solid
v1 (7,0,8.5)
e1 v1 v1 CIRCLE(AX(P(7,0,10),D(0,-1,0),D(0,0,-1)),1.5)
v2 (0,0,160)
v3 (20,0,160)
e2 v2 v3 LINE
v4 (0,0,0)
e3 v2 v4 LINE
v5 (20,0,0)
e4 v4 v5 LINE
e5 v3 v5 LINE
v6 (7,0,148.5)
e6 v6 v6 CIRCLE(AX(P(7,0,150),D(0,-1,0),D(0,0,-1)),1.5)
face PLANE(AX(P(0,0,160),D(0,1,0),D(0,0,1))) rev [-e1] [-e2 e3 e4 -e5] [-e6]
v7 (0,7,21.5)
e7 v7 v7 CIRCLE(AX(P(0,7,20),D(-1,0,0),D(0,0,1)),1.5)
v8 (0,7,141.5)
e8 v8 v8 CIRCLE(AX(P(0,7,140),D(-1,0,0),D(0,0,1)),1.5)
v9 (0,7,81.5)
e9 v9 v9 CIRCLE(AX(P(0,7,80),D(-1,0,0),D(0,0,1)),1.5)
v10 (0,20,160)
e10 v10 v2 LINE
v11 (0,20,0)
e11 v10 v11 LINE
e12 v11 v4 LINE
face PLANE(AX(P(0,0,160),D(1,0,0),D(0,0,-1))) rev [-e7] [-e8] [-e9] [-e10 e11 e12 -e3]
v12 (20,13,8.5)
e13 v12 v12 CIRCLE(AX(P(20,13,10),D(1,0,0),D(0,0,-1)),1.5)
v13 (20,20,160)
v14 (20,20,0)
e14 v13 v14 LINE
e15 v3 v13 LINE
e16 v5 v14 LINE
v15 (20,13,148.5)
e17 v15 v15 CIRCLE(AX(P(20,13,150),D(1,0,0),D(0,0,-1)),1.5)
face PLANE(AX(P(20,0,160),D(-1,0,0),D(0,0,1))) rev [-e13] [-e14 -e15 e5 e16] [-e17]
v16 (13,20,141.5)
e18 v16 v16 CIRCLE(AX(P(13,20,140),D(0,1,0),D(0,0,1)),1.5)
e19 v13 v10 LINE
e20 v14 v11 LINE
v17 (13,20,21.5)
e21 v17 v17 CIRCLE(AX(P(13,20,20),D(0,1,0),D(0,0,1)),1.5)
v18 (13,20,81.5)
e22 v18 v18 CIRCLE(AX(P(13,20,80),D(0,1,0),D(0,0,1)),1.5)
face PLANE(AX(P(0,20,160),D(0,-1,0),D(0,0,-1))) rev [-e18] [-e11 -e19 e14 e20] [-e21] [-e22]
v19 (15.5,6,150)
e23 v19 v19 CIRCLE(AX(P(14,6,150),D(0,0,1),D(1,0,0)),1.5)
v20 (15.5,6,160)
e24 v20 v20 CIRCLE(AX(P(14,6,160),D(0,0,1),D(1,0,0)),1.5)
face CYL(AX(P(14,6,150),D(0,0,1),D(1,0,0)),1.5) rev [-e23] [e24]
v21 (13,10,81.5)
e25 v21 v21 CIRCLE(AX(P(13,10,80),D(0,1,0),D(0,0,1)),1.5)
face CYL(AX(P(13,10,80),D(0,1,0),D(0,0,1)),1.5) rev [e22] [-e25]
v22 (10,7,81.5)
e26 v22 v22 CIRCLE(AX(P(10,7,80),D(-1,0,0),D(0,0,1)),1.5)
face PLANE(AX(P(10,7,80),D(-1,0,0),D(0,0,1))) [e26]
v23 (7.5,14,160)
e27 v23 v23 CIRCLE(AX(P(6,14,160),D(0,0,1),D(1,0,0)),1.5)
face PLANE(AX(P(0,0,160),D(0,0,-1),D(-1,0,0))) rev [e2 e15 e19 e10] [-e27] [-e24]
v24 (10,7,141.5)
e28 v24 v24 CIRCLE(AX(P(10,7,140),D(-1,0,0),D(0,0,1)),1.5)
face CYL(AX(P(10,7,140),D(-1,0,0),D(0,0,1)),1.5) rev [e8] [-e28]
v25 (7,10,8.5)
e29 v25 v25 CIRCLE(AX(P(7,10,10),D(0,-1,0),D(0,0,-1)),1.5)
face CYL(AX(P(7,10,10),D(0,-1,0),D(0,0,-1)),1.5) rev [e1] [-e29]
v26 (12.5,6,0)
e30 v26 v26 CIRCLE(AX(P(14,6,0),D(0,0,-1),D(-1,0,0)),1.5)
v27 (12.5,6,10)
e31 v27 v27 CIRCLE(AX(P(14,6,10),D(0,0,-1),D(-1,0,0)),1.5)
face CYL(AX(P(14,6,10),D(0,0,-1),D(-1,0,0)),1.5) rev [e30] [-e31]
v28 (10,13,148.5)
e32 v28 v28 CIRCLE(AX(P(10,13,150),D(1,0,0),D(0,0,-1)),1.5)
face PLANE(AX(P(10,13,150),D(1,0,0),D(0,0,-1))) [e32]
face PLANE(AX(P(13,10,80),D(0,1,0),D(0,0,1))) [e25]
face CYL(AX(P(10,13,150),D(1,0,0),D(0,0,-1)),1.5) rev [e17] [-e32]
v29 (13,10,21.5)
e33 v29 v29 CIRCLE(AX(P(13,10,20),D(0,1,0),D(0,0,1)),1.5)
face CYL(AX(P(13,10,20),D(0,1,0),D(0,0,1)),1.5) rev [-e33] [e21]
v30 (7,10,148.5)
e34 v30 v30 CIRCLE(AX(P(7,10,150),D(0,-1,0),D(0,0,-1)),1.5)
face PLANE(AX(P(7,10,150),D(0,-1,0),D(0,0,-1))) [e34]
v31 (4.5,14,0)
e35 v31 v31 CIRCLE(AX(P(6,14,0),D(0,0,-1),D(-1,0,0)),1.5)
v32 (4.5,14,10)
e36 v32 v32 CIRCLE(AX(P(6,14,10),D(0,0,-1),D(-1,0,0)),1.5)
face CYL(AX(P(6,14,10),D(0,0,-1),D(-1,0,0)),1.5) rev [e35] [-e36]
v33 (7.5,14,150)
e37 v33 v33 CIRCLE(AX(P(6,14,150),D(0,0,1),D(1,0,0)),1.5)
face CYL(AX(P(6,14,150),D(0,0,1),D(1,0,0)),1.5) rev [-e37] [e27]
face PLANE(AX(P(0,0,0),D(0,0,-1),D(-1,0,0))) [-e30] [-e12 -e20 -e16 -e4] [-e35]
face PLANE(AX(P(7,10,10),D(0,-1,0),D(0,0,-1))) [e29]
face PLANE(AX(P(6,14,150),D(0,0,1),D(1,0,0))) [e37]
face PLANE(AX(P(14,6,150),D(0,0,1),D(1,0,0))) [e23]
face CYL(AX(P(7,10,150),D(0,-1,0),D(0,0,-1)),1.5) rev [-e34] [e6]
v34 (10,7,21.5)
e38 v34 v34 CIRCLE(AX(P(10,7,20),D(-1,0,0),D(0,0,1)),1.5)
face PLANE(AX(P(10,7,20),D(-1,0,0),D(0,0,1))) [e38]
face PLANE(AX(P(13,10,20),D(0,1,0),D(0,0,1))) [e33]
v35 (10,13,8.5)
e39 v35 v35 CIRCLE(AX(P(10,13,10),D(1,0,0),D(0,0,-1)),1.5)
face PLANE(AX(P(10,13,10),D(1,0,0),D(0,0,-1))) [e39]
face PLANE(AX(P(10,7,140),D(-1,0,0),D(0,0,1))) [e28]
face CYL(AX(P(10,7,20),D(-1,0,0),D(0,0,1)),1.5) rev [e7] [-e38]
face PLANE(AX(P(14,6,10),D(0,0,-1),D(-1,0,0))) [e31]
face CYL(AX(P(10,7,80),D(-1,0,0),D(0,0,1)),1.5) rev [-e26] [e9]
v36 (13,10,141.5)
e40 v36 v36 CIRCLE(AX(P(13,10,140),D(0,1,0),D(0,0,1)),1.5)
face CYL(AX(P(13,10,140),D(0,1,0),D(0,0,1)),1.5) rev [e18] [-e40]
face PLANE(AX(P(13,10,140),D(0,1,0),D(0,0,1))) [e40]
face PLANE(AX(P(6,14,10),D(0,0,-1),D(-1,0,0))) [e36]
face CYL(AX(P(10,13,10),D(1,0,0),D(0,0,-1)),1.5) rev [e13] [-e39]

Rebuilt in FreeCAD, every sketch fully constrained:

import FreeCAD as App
import Part
import Sketcher
Q = App.Units.Quantity


def add_polygon(sketch, points):
    """Adds a closed chain of lines whose ends are joined by coincident constraints."""
    first, n = sketch.GeometryCount, len(points)
    for a, b in zip(points, points[1:] + points[:1]):
        sketch.addGeometry(Part.LineSegment(App.Vector(*a, 0), App.Vector(*b, 0)), False)
    for i in range(n):
        sketch.addConstraint(Sketcher.Constraint("Coincident", first + i, 2, first + (i + 1) % n, 1))

doc = App.newDocument("Part")
body = doc.addObject("PartDesign::Body", "Body")

sketch1 = doc.addObject("Sketcher::SketchObject", "Sketch")
body.addObject(sketch1)
sketch1.AttachmentSupport = (doc.XY_Plane, [""])
sketch1.MapMode = "FlatFace"
add_polygon(sketch1, [(0, 20), (0, 0), (20, 0), (20, 20)])
sketch1.addConstraint([
    Sketcher.Constraint("Vertical", 0),
    Sketcher.Constraint("Horizontal", 1),
    Sketcher.Constraint("Vertical", 2),
    Sketcher.Constraint("Horizontal", 3),
    Sketcher.Constraint("Coincident", 0, 2, -1, 1),
    Sketcher.Constraint("Equal", 3, 0),
    Sketcher.Constraint("DistanceX", 1, 1, 1, 2, Q("20 mm")),
])
pad1 = doc.addObject("PartDesign::Pad", "Pad")
body.addObject(pad1)
pad1.Profile = sketch1
pad1.Length = 160

sketch2 = doc.addObject("Sketcher::SketchObject", "Sketch001")
body.addObject(sketch2)
sketch2.AttachmentSupport = (doc.XY_Plane, [""])
sketch2.MapMode = "FlatFace"
sketch2.AttachmentOffset = App.Placement(App.Vector(0, 0, 160), App.Rotation())
sketch2.addGeometry([
    Part.Circle(App.Vector(14, 6, 0), App.Vector(0, 0, 1), 1.5),
    Part.Circle(App.Vector(6, 14, 0), App.Vector(0, 0, 1), 1.5),
], False)
sketch2.addConstraint([
    Sketcher.Constraint("Equal", 0, 1),
    Sketcher.Constraint("Diameter", 0, Q("3 mm")),
    Sketcher.Constraint("DistanceX", -1, 1, 0, 3, Q("14 mm")),
    Sketcher.Constraint("DistanceY", -1, 1, 0, 3, Q("6 mm")),
    Sketcher.Constraint("DistanceX", -1, 1, 1, 3, Q("6 mm")),
    Sketcher.Constraint("DistanceY", -1, 1, 1, 3, Q("14 mm")),
])
pocket1 = doc.addObject("PartDesign::Pocket", "Pocket")
body.addObject(pocket1)
pocket1.Profile = sketch2
pocket1.Length = 10

sketch3 = doc.addObject("Sketcher::SketchObject", "Sketch002")
body.addObject(sketch3)
sketch3.AttachmentSupport = (doc.XY_Plane, [""])
sketch3.MapMode = "FlatFace"
sketch3.AttachmentOffset = App.Placement(App.Vector(0, 0, 10), App.Rotation())
sketch3.addGeometry([
    Part.Circle(App.Vector(14, 6, 0), App.Vector(0, 0, 1), 1.5),
    Part.Circle(App.Vector(6, 14, 0), App.Vector(0, 0, 1), 1.5),
], False)
sketch3.addConstraint([
    Sketcher.Constraint("Equal", 0, 1),
    Sketcher.Constraint("Diameter", 0, Q("3 mm")),
    Sketcher.Constraint("DistanceX", -1, 1, 0, 3, Q("14 mm")),
    Sketcher.Constraint("DistanceY", -1, 1, 0, 3, Q("6 mm")),
    Sketcher.Constraint("DistanceX", -1, 1, 1, 3, Q("6 mm")),
    Sketcher.Constraint("DistanceY", -1, 1, 1, 3, Q("14 mm")),
])
pocket2 = doc.addObject("PartDesign::Pocket", "Pocket001")
body.addObject(pocket2)
pocket2.Profile = sketch3
pocket2.Length = 10

sketch4 = doc.addObject("Sketcher::SketchObject", "Sketch003")
body.addObject(sketch4)
sketch4.AttachmentSupport = (doc.YZ_Plane, [""])
sketch4.MapMode = "FlatFace"
sketch4.AttachmentOffset = App.Placement(App.Vector(0, 0, 20), App.Rotation())
sketch4.addGeometry([
    Part.Circle(App.Vector(13, 10, 0), App.Vector(0, 0, 1), 1.5),
    Part.Circle(App.Vector(13, 150, 0), App.Vector(0, 0, 1), 1.5),
], False)
sketch4.addConstraint([
    Sketcher.Constraint("Equal", 0, 1),
    Sketcher.Constraint("Vertical", 0, 3, 1, 3),
    Sketcher.Constraint("Diameter", 0, Q("3 mm")),
    Sketcher.Constraint("DistanceX", -1, 1, 0, 3, Q("13 mm")),
    Sketcher.Constraint("DistanceY", -1, 1, 0, 3, Q("10 mm")),
    Sketcher.Constraint("DistanceY", -1, 1, 1, 3, Q("150 mm")),
])
pocket3 = doc.addObject("PartDesign::Pocket", "Pocket002")
body.addObject(pocket3)
pocket3.Profile = sketch4
pocket3.Length = 10

sketch5 = doc.addObject("Sketcher::SketchObject", "Sketch004")
body.addObject(sketch5)
sketch5.AttachmentSupport = (doc.XZ_Plane, [""])
sketch5.MapMode = "FlatFace"
sketch5.addGeometry([
    Part.Circle(App.Vector(7, 10, 0), App.Vector(0, 0, 1), 1.5),
    Part.Circle(App.Vector(7, 150, 0), App.Vector(0, 0, 1), 1.5),
], False)
sketch5.addConstraint([
    Sketcher.Constraint("Equal", 0, 1),
    Sketcher.Constraint("Vertical", 0, 3, 1, 3),
    Sketcher.Constraint("Diameter", 0, Q("3 mm")),
    Sketcher.Constraint("DistanceX", -1, 1, 0, 3, Q("7 mm")),
    Sketcher.Constraint("DistanceY", -1, 1, 0, 3, Q("10 mm")),
    Sketcher.Constraint("DistanceY", -1, 1, 1, 3, Q("150 mm")),
])
pocket4 = doc.addObject("PartDesign::Pocket", "Pocket003")
body.addObject(pocket4)
pocket4.Profile = sketch5
pocket4.Length = 10

sketch6 = doc.addObject("Sketcher::SketchObject", "Sketch005")
body.addObject(sketch6)
sketch6.AttachmentSupport = (doc.XZ_Plane, [""])
sketch6.MapMode = "FlatFace"
sketch6.AttachmentOffset = App.Placement(App.Vector(0, 0, -20), App.Rotation())
sketch6.addGeometry([
    Part.Circle(App.Vector(13, 20, 0), App.Vector(0, 0, 1), 1.5),
    Part.Circle(App.Vector(13, 80, 0), App.Vector(0, 0, 1), 1.5),
    Part.Circle(App.Vector(13, 140, 0), App.Vector(0, 0, 1), 1.5),
], False)
sketch6.addConstraint([
    Sketcher.Constraint("Equal", 0, 1),
    Sketcher.Constraint("Equal", 1, 2),
    Sketcher.Constraint("Vertical", 0, 3, 1, 3),
    Sketcher.Constraint("Vertical", 1, 3, 2, 3),
    Sketcher.Constraint("Diameter", 0, Q("3 mm")),
    Sketcher.Constraint("DistanceX", -1, 1, 0, 3, Q("13 mm")),
    Sketcher.Constraint("DistanceY", -1, 1, 0, 3, Q("20 mm")),
    Sketcher.Constraint("DistanceY", -1, 1, 1, 3, Q("80 mm")),
    Sketcher.Constraint("DistanceY", -1, 1, 2, 3, Q("140 mm")),
])
pocket5 = doc.addObject("PartDesign::Pocket", "Pocket004")
body.addObject(pocket5)
pocket5.Profile = sketch6
pocket5.Length = 10
pocket5.Reversed = True

sketch7 = doc.addObject("Sketcher::SketchObject", "Sketch006")
body.addObject(sketch7)
sketch7.AttachmentSupport = (doc.YZ_Plane, [""])
sketch7.MapMode = "FlatFace"
sketch7.addGeometry([
    Part.Circle(App.Vector(7, 20, 0), App.Vector(0, 0, 1), 1.5),
    Part.Circle(App.Vector(7, 80, 0), App.Vector(0, 0, 1), 1.5),
    Part.Circle(App.Vector(7, 140, 0), App.Vector(0, 0, 1), 1.5),
], False)
sketch7.addConstraint([
    Sketcher.Constraint("Equal", 0, 1),
    Sketcher.Constraint("Equal", 1, 2),
    Sketcher.Constraint("Vertical", 0, 3, 1, 3),
    Sketcher.Constraint("Vertical", 1, 3, 2, 3),
    Sketcher.Constraint("Diameter", 0, Q("3 mm")),
    Sketcher.Constraint("DistanceX", -1, 1, 0, 3, Q("7 mm")),
    Sketcher.Constraint("DistanceY", -1, 1, 0, 3, Q("20 mm")),
    Sketcher.Constraint("DistanceY", -1, 1, 1, 3, Q("80 mm")),
    Sketcher.Constraint("DistanceY", -1, 1, 2, 3, Q("140 mm")),
])
pocket6 = doc.addObject("PartDesign::Pocket", "Pocket005")
body.addObject(pocket6)
pocket6.Profile = sketch7
pocket6.Length = 10
pocket6.Reversed = True

doc.recompute()
